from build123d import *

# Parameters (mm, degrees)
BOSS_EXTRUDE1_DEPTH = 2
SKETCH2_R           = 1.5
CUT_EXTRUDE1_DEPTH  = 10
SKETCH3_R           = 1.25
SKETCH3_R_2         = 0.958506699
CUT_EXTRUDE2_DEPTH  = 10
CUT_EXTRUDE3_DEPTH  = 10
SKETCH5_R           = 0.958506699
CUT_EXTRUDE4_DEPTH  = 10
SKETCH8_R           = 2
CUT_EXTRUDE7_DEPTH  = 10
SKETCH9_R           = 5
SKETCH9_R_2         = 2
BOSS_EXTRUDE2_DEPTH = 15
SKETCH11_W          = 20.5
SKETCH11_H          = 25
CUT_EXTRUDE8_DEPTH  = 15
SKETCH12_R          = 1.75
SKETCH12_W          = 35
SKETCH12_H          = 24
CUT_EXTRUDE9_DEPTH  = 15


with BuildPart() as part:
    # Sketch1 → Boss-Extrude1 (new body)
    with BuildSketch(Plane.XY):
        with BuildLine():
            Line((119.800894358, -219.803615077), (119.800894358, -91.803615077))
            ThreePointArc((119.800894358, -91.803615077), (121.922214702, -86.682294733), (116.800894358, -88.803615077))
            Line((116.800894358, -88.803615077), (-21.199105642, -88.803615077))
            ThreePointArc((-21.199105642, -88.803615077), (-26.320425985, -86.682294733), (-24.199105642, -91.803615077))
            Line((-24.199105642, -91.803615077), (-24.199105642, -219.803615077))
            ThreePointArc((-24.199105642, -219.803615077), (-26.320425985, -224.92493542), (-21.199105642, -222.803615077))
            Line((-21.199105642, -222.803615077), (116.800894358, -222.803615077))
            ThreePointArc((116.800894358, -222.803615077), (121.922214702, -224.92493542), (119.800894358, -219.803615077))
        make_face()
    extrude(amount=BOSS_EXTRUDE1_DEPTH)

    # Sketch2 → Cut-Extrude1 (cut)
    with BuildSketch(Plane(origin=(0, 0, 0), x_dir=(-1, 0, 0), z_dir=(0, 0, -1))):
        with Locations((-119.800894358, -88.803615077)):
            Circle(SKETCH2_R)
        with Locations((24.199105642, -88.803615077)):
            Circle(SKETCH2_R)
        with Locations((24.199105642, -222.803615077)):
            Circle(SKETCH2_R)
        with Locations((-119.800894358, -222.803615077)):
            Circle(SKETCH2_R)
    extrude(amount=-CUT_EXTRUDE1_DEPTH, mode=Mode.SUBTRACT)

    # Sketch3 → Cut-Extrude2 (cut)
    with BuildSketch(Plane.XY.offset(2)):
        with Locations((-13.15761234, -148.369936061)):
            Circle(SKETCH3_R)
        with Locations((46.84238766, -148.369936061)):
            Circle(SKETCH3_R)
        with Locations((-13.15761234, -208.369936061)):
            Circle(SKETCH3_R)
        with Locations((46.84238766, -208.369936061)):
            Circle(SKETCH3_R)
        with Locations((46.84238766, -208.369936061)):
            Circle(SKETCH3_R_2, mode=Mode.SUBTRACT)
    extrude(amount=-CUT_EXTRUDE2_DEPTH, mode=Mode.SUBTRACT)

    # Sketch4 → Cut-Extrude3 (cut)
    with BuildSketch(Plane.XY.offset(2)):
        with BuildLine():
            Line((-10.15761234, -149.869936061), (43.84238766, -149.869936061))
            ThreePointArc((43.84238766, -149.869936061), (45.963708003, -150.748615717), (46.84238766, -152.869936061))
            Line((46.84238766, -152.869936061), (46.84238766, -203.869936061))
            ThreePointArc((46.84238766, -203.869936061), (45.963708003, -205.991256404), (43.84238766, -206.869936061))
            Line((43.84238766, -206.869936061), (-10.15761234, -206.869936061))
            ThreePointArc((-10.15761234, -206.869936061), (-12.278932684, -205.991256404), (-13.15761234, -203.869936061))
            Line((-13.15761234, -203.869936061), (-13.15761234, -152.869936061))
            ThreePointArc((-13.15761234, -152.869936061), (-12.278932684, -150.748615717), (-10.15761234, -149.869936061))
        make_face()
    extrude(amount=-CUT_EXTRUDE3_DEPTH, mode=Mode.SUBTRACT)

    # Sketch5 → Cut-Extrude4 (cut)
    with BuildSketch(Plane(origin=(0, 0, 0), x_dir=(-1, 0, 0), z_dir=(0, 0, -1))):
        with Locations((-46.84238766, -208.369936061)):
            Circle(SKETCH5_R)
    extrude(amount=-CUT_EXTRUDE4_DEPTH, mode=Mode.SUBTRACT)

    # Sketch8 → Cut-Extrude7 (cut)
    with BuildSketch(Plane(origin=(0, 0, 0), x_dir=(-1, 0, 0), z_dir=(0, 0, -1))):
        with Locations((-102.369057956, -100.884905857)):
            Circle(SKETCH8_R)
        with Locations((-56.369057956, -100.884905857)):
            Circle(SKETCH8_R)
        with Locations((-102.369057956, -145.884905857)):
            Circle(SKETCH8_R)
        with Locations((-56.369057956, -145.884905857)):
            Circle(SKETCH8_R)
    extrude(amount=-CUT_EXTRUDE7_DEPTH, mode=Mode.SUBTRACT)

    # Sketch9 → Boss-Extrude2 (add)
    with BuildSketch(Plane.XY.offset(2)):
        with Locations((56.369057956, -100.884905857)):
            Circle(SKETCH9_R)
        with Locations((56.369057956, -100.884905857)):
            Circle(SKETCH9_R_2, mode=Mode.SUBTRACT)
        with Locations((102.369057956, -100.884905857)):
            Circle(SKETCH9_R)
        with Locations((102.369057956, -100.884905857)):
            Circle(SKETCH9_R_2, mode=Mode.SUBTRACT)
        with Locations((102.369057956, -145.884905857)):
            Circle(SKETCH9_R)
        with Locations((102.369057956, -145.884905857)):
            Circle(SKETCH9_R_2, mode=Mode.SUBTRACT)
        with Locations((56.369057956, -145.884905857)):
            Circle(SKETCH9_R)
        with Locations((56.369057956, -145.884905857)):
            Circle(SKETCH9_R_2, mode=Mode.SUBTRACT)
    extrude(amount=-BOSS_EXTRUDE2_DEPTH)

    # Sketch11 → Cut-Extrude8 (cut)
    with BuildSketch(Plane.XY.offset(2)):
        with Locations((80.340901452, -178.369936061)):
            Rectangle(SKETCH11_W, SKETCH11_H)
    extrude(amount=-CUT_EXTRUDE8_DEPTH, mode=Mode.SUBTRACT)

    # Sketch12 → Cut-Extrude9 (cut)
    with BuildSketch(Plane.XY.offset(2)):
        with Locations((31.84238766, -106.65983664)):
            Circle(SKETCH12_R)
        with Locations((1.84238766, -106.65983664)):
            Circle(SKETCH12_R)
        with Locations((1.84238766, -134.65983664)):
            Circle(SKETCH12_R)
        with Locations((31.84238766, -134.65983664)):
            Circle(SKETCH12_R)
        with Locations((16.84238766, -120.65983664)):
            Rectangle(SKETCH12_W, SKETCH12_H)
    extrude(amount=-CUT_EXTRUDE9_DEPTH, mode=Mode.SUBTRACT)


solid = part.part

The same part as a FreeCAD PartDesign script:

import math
import FreeCAD as App
import Part
import Sketcher

V = App.Vector
Q = App.Units.Quantity

doc = App.newDocument("Part")
params = doc.addObject("Spreadsheet::Sheet", "Params")
for row, (alias, value) in enumerate([
    ("sketch1_radius", "3 mm"),
    ("sketch1_width", "138 mm"),
    ("sketch1_height", "128 mm"),
    ("pad1_length", "2 mm"),
    ("sketch2_diameter", "3 mm"),
    ("pocket1_length", "10 mm"),
    ("sketch3_diameter", "2.5 mm"),
    ("pocket2_length", "10 mm"),
    ("sketch4_radius", "3 mm"),
    ("sketch4_width", "54 mm"),
    ("sketch4_height", "51 mm"),
    ("pocket3_length", "10 mm"),
    ("pocket4_length", "10 mm"),
    ("sketch6_diameter", "4 mm"),
    ("pocket5_length", "10 mm"),
    ("sketch7_diameter", "10 mm"),
    ("sketch7_diameter2", "4 mm"),
    ("pad2_length", "15 mm"),
    ("sketch8_height", "25 mm"),
    ("sketch8_width", "20.5 mm"),
    ("pocket6_length", "15 mm"),
    ("sketch9_diameter", "3.5 mm"),
    ("sketch9_width", "35 mm"),
    ("sketch9_height", "24 mm"),
    ("pocket7_length", "15 mm"),
], start=1):
    params.set(f"A{row}", alias)
    params.set(f"B{row}", "=" + value)
    params.setAlias(f"B{row}", alias)

body = doc.addObject("PartDesign::Body", "Body")
body.AllowCompound = True

sketch1 = body.newObject("Sketcher::SketchObject", "Sketch")
sketch1.AttachmentSupport = (doc.getObject("XY_Plane"), [""])
sketch1.MapMode = "FlatFace"
sketch1.addGeometry([
    Part.LineSegment(V(119.800894, -219.803615, 0), V(119.800894, -91.803615, 0)),
    Part.ArcOfCircle(Part.Circle(V(119.800894, -88.803615, 0), V(0, 0, 1), 3), math.radians(-90), math.radians(180)),
    Part.LineSegment(V(116.800894, -88.803615, 0), V(-21.199106, -88.803615, 0)),
    Part.ArcOfCircle(Part.Circle(V(-24.199106, -88.803615, 0), V(0, 0, 1), 3), math.radians(0), math.radians(270)),
    Part.LineSegment(V(-24.199106, -91.803615, 0), V(-24.199106, -219.803615, 0)),
    Part.ArcOfCircle(Part.Circle(V(-24.199106, -222.803615, 0), V(0, 0, 1), 3), math.radians(90), math.radians(360)),
    Part.LineSegment(V(-21.199106, -222.803615, 0), V(116.800894, -222.803615, 0)),
    Part.ArcOfCircle(Part.Circle(V(119.800894, -222.803615, 0), V(0, 0, 1), 3), math.radians(180), math.radians(450)),
], False)
sketch1.addConstraint([
    Sketcher.Constraint("Coincident", 0, 2, 1, 1),
    Sketcher.Constraint("Coincident", 1, 2, 2, 1),
    Sketcher.Constraint("Coincident", 2, 2, 3, 1),
    Sketcher.Constraint("Coincident", 3, 2, 4, 1),
    Sketcher.Constraint("Coincident", 4, 2, 5, 1),
    Sketcher.Constraint("Coincident", 5, 2, 6, 1),
    Sketcher.Constraint("Coincident", 6, 2, 7, 1),
    Sketcher.Constraint("Coincident", 7, 2, 0, 1),
    Sketcher.Constraint("Vertical", 0),
    Sketcher.Constraint("Horizontal", 2),
    Sketcher.Constraint("Vertical", 4),
    Sketcher.Constraint("Horizontal", 6),
    Sketcher.Constraint("Equal", 1, 3),
    Sketcher.Constraint("Equal", 3, 5),
    Sketcher.Constraint("Equal", 5, 7),
    Sketcher.Constraint("Horizontal", 1, 3, 3, 3),
    Sketcher.Constraint("Horizontal", 5, 3, 7, 3),
    Sketcher.Constraint("Horizontal", 3, 3, 1, 2),
    Sketcher.Constraint("Horizontal", 7, 3, 5, 2),
    Sketcher.Constraint("Vertical", 3, 3, 5, 3),
    Sketcher.Constraint("Vertical", 1, 3, 7, 3),
    Sketcher.Constraint("Vertical", 7, 3, 0, 2),
    Sketcher.Constraint("Vertical", 5, 3, 3, 2),
    Sketcher.Constraint("Radius", 1, Q("3 mm")),
    Sketcher.Constraint("DistanceX", 2, 2, 2, 1, Q("138 mm")),
    Sketcher.Constraint("DistanceY", 0, 1, 0, 2, Q("128 mm")),
    Sketcher.Constraint("DistanceX", -1, 1, 1, 3, Q("119.800894 mm")),
    Sketcher.Constraint("DistanceY", 1, 3, -1, 1, Q("88.803615 mm")),
])
sketch1.setExpression("Constraints[23]", "Params.sketch1_radius")
sketch1.setExpression("Constraints[24]", "Params.sketch1_width")
sketch1.setExpression("Constraints[25]", "Params.sketch1_height")
pad1 = body.newObject("PartDesign::Pad", "Pad")
pad1.Profile = sketch1
pad1.setExpression("Length", "Params.pad1_length")

sketch2 = body.newObject("Sketcher::SketchObject", "Sketch001")
sketch2.AttachmentSupport = (doc.getObject("XY_Plane"), [""])
sketch2.MapMode = "FlatFace"
sketch2.addGeometry([
    Part.Circle(V(119.800894, -88.803615, 0), V(0, 0, 1), 1.5),
    Part.Circle(V(-24.199106, -88.803615, 0), V(0, 0, 1), 1.5),
    Part.Circle(V(-24.199106, -222.803615, 0), V(0, 0, 1), 1.5),
    Part.Circle(V(119.800894, -222.803615, 0), V(0, 0, 1), 1.5),
], False)
sketch2.addConstraint([
    Sketcher.Constraint("Equal", 0, 1),
    Sketcher.Constraint("Equal", 1, 2),
    Sketcher.Constraint("Equal", 2, 3),
    Sketcher.Constraint("Horizontal", 0, 3, 1, 3),
    Sketcher.Constraint("Horizontal", 2, 3, 3, 3),
    Sketcher.Constraint("Vertical", 1, 3, 2, 3),
    Sketcher.Constraint("Vertical", 0, 3, 3, 3),
    Sketcher.Constraint("Diameter", 0, Q("3 mm")),
    Sketcher.Constraint("DistanceX", 1, 3, 0, 3, Q("144 mm")),
    Sketcher.Constraint("DistanceY", 2, 3, 1, 3, Q("134 mm")),
    Sketcher.Constraint("DistanceX", -1, 1, 0, 3, Q("119.800894 mm")),
    Sketcher.Constraint("DistanceY", 0, 3, -1, 1, Q("88.803615 mm")),
])
sketch2.setExpression("Constraints[7]", "Params.sketch2_diameter")
pocket1 = body.newObject("PartDesign::Pocket", "Pocket")
pocket1.Profile = sketch2
pocket1.setExpression("Length", "Params.pocket1_length")
pocket1.Reversed = True

sketch3 = body.newObject("Sketcher::SketchObject", "Sketch002")
sketch3.AttachmentSupport = (doc.getObject("XY_Plane"), [""])
sketch3.MapMode = "FlatFace"
sketch3.AttachmentOffset = App.Placement(V(0, 0, 2), App.Rotation())
sketch3.addGeometry([
    Part.Circle(V(-13.157612, -148.369936, 0), V(0, 0, 1), 1.25),
    Part.Circle(V(46.842388, -148.369936, 0), V(0, 0, 1), 1.25),
    Part.Circle(V(-13.157612, -208.369936, 0), V(0, 0, 1), 1.25),
    Part.Circle(V(46.842388, -208.369936, 0), V(0, 0, 1), 1.25),
    Part.Circle(V(46.842388, -208.369936, 0), V(0, 0, 1), 0.958507),
], False)
sketch3.addConstraint([
    Sketcher.Constraint("Coincident", 4, 3, 3, 3),
    Sketcher.Constraint("Equal", 0, 1),
    Sketcher.Constraint("Equal", 1, 2),
    Sketcher.Constraint("Equal", 2, 3),
    Sketcher.Constraint("Horizontal", 0, 3, 1, 3),
    Sketcher.Constraint("Horizontal", 2, 3, 3, 3),
    Sketcher.Constraint("Vertical", 0, 3, 2, 3),
    Sketcher.Constraint("Vertical", 1, 3, 3, 3),
    Sketcher.Constraint("Diameter", 0, Q("2.5 mm")),
    Sketcher.Constraint("DistanceX", 0, 3, 1, 3, Q("60 mm")),
    Sketcher.Constraint("DistanceY", 2, 3, 0, 3, Q("60 mm")),
    Sketcher.Constraint("Diameter", 4, Q("1.917013 mm")),
    Sketcher.Constraint("DistanceX", 0, 3, -1, 1, Q("13.157612 mm")),
    Sketcher.Constraint("DistanceY", 0, 3, -1, 1, Q("148.369936 mm")),
])
sketch3.setExpression("Constraints[8]", "Params.sketch3_diameter")
pocket2 = body.newObject("PartDesign::Pocket", "Pocket001")
pocket2.Profile = sketch3
pocket2.setExpression("Length", "Params.pocket2_length")

sketch4 = body.newObject("Sketcher::SketchObject", "Sketch003")
sketch4.AttachmentSupport = (doc.getObject("XY_Plane"), [""])
sketch4.MapMode = "FlatFace"
sketch4.AttachmentOffset = App.Placement(V(0, 0, 2), App.Rotation())
sketch4.addGeometry([
    Part.LineSegment(V(43.842388, -149.869936, 0), V(-10.157612, -149.869936, 0)),
    Part.ArcOfCircle(Part.Circle(V(-10.157612, -152.869936, 0), V(0, 0, 1), 3), math.radians(90), math.radians(180)),
    Part.LineSegment(V(-13.157612, -152.869936, 0), V(-13.157612, -203.869936, 0)),
    Part.ArcOfCircle(Part.Circle(V(-10.157612, -203.869936, 0), V(0, 0, 1), 3), math.radians(180), math.radians(270)),
    Part.LineSegment(V(-10.157612, -206.869936, 0), V(43.842388, -206.869936, 0)),
    Part.ArcOfCircle(Part.Circle(V(43.842388, -203.869936, 0), V(0, 0, 1), 3), math.radians(-90), math.radians(0)),
    Part.LineSegment(V(46.842388, -203.869936, 0), V(46.842388, -152.869936, 0)),
    Part.ArcOfCircle(Part.Circle(V(43.842388, -152.869936, 0), V(0, 0, 1), 3), math.radians(0), math.radians(90)),
], False)
sketch4.addConstraint([
    Sketcher.Constraint("Tangent", 0, 2, 1, 1),
    Sketcher.Constraint("Tangent", 1, 2, 2, 1),
    Sketcher.Constraint("Tangent", 2, 2, 3, 1),
    Sketcher.Constraint("Tangent", 3, 2, 4, 1),
    Sketcher.Constraint("Tangent", 4, 2, 5, 1),
    Sketcher.Constraint("Tangent", 5, 2, 6, 1),
    Sketcher.Constraint("Tangent", 6, 2, 7, 1),
    Sketcher.Constraint("Tangent", 7, 2, 0, 1),
    Sketcher.Constraint("Horizontal", 0),
    Sketcher.Constraint("Vertical", 2),
    Sketcher.Constraint("Horizontal", 4),
    Sketcher.Constraint("Vertical", 6),
    Sketcher.Constraint("Equal", 1, 3),
    Sketcher.Constraint("Equal", 3, 5),
    Sketcher.Constraint("Equal", 5, 7),
    Sketcher.Constraint("Radius", 1, Q("3 mm")),
    Sketcher.Constraint("DistanceX", 0, 2, 0, 1, Q("54 mm")),
    Sketcher.Constraint("DistanceY", 2, 2, 2, 1, Q("51 mm")),
    Sketcher.Constraint("DistanceX", 1, 3, -1, 1, Q("10.157612 mm")),
    Sketcher.Constraint("DistanceY", 1, 3, -1, 1, Q("152.869936 mm")),
])
sketch4.setExpression("Constraints[15]", "Params.sketch4_radius")
sketch4.setExpression("Constraints[16]", "Params.sketch4_width")
sketch4.setExpression("Constraints[17]", "Params.sketch4_height")
pocket3 = body.newObject("PartDesign::Pocket", "Pocket002")
pocket3.Profile = sketch4
pocket3.setExpression("Length", "Params.pocket3_length")

sketch5 = body.newObject("Sketcher::SketchObject", "Sketch004")
sketch5.AttachmentSupport = (doc.getObject("XY_Plane"), [""])
sketch5.MapMode = "FlatFace"
sketch5.addGeometry(Part.Circle(V(46.842388, -208.369936, 0), V(0, 0, 1), 0.958507), False)
sketch5.addConstraint([
    Sketcher.Constraint("Diameter", 0, Q("1.917013 mm")),
    Sketcher.Constraint("DistanceX", -1, 1, 0, 3, Q("46.842388 mm")),
    Sketcher.Constraint("DistanceY", 0, 3, -1, 1, Q("208.369936 mm")),
])
pocket4 = body.newObject("PartDesign::Pocket", "Pocket003")
pocket4.Profile = sketch5
pocket4.setExpression("Length", "Params.pocket4_length")
pocket4.Reversed = True

sketch6 = body.newObject("Sketcher::SketchObject", "Sketch005")
sketch6.AttachmentSupport = (doc.getObject("XY_Plane"), [""])
sketch6.MapMode = "FlatFace"
sketch6.addGeometry([
    Part.Circle(V(102.369058, -100.884906, 0), V(0, 0, 1), 2),
    Part.Circle(V(56.369058, -100.884906, 0), V(0, 0, 1), 2),
    Part.Circle(V(102.369058, -145.884906, 0), V(0, 0, 1), 2),
    Part.Circle(V(56.369058, -145.884906, 0), V(0, 0, 1), 2),
], False)
sketch6.addConstraint([
    Sketcher.Constraint("Equal", 0, 1),
    Sketcher.Constraint("Equal", 1, 2),
    Sketcher.Constraint("Equal", 2, 3),
    Sketcher.Constraint("Horizontal", 0, 3, 1, 3),
    Sketcher.Constraint("Horizontal", 2, 3, 3, 3),
    Sketcher.Constraint("Vertical", 0, 3, 2, 3),
    Sketcher.Constraint("Vertical", 1, 3, 3, 3),
    Sketcher.Constraint("Diameter", 0, Q("4 mm")),
    Sketcher.Constraint("DistanceX", 1, 3, 0, 3, Q("46 mm")),
    Sketcher.Constraint("DistanceY", 2, 3, 0, 3, Q("45 mm")),
    Sketcher.Constraint("DistanceX", -1, 1, 0, 3, Q("102.369058 mm")),
    Sketcher.Constraint("DistanceY", 0, 3, -1, 1, Q("100.884906 mm")),
])
sketch6.setExpression("Constraints[7]", "Params.sketch6_diameter")
pocket5 = body.newObject("PartDesign::Pocket", "Pocket004")
pocket5.Profile = sketch6
pocket5.setExpression("Length", "Params.pocket5_length")
pocket5.Reversed = True

sketch7 = body.newObject("Sketcher::SketchObject", "Sketch006")
sketch7.AttachmentSupport = (doc.getObject("XY_Plane"), [""])
sketch7.MapMode = "FlatFace"
sketch7.AttachmentOffset = App.Placement(V(0, 0, 2), App.Rotation())
sketch7.addGeometry([
    Part.Circle(V(56.369058, -100.884906, 0), V(0, 0, 1), 5),
    Part.Circle(V(56.369058, -100.884906, 0), V(0, 0, 1), 2),
    Part.Circle(V(102.369058, -100.884906, 0), V(0, 0, 1), 5),
    Part.Circle(V(102.369058, -100.884906, 0), V(0, 0, 1), 2),
    Part.Circle(V(102.369058, -145.884906, 0), V(0, 0, 1), 5),
    Part.Circle(V(102.369058, -145.884906, 0), V(0, 0, 1), 2),
    Part.Circle(V(56.369058, -145.884906, 0), V(0, 0, 1), 5),
    Part.Circle(V(56.369058, -145.884906, 0), V(0, 0, 1), 2),
], False)
sketch7.addConstraint([
    Sketcher.Constraint("Coincident", 1, 3, 0, 3),
    Sketcher.Constraint("Coincident", 3, 3, 2, 3),
    Sketcher.Constraint("Coincident", 5, 3, 4, 3),
    Sketcher.Constraint("Coincident", 7, 3, 6, 3),
    Sketcher.Constraint("Equal", 0, 2),
    Sketcher.Constraint("Equal", 1, 3),
    Sketcher.Constraint("Equal", 2, 4),
    Sketcher.Constraint("Equal", 3, 5),
    Sketcher.Constraint("Equal", 4, 6),
    Sketcher.Constraint("Equal", 5, 7),
    Sketcher.Constraint("Horizontal", 1, 3, 2, 3),
    Sketcher.Constraint("Horizontal", 5, 3, 6, 3),
    Sketcher.Constraint("Vertical", 3, 3, 4, 3),
    Sketcher.Constraint("Vertical", 1, 3, 6, 3),
    Sketcher.Constraint("Diameter", 0, Q("10 mm")),
    Sketcher.Constraint("Diameter", 1, Q("4 mm")),
    Sketcher.Constraint("DistanceX", 0, 3, 2, 3, Q("46 mm")),
    Sketcher.Constraint("DistanceY", 4, 3, 2, 3, Q("45 mm")),
    Sketcher.Constraint("DistanceX", -1, 1, 0, 3, Q("56.369058 mm")),
    Sketcher.Constraint("DistanceY", 0, 3, -1, 1, Q("100.884906 mm")),
])
sketch7.setExpression("Constraints[14]", "Params.sketch7_diameter")
sketch7.setExpression("Constraints[15]", "Params.sketch7_diameter2")
pad2 = body.newObject("PartDesign::Pad", "Pad001")
pad2.Profile = sketch7
pad2.setExpression("Length", "Params.pad2_length")
pad2.Reversed = True

sketch8 = body.newObject("Sketcher::SketchObject", "Sketch007")
sketch8.AttachmentSupport = (doc.getObject("XY_Plane"), [""])
sketch8.MapMode = "FlatFace"
sketch8.AttachmentOffset = App.Placement(V(0, 0, 2), App.Rotation())
sketch8.addGeometry([
    Part.LineSegment(V(70.090901, -165.869936, 0), V(70.090901, -190.869936, 0)),
    Part.LineSegment(V(70.090901, -190.869936, 0), V(90.590901, -190.869936, 0)),
    Part.LineSegment(V(90.590901, -190.869936, 0), V(90.590901, -165.869936, 0)),
    Part.LineSegment(V(90.590901, -165.869936, 0), V(70.090901, -165.869936, 0)),
], False)
sketch8.addConstraint([
    Sketcher.Constraint("Coincident", 0, 2, 1, 1),
    Sketcher.Constraint("Coincident", 1, 2, 2, 1),
    Sketcher.Constraint("Coincident", 2, 2, 3, 1),
    Sketcher.Constraint("Coincident", 3, 2, 0, 1),
    Sketcher.Constraint("Vertical", 0),
    Sketcher.Constraint("Horizontal", 1),
    Sketcher.Constraint("Vertical", 2),
    Sketcher.Constraint("Horizontal", 3),
    Sketcher.Constraint("DistanceY", 0, 2, 0, 1, Q("25 mm")),
    Sketcher.Constraint("DistanceX", 1, 1, 1, 2, Q("20.5 mm")),
    Sketcher.Constraint("DistanceX", -1, 1, 0, 2, Q("70.090901 mm")),
    Sketcher.Constraint("DistanceY", 0, 2, -1, 1, Q("190.869936 mm")),
])
sketch8.setExpression("Constraints[8]", "Params.sketch8_height")
sketch8.setExpression("Constraints[9]", "Params.sketch8_width")
pocket6 = body.newObject("PartDesign::Pocket", "Pocket005")
pocket6.Profile = sketch8
pocket6.setExpression("Length", "Params.pocket6_length")

sketch9 = body.newObject("Sketcher::SketchObject", "Sketch008")
sketch9.AttachmentSupport = (doc.getObject("XY_Plane"), [""])
sketch9.MapMode = "FlatFace"
sketch9.AttachmentOffset = App.Placement(V(0, 0, 2), App.Rotation())
sketch9.addGeometry([
    Part.Circle(V(31.842388, -106.659837, 0), V(0, 0, 1), 1.75),
    Part.Circle(V(1.842388, -106.659837, 0), V(0, 0, 1), 1.75),
    Part.Circle(V(1.842388, -134.659837, 0), V(0, 0, 1), 1.75),
    Part.Circle(V(31.842388, -134.659837, 0), V(0, 0, 1), 1.75),
    Part.LineSegment(V(-0.657612, -108.659837, 0), V(-0.657612, -132.659837, 0)),
    Part.LineSegment(V(-0.657612, -132.659837, 0), V(34.342388, -132.659837, 0)),
    Part.LineSegment(V(34.342388, -132.659837, 0), V(34.342388, -108.659837, 0)),
    Part.LineSegment(V(34.342388, -108.659837, 0), V(-0.657612, -108.659837, 0)),
], False)
sketch9.addConstraint([
    Sketcher.Constraint("Coincident", 4, 2, 5, 1),
    Sketcher.Constraint("Coincident", 5, 2, 6, 1),
    Sketcher.Constraint("Coincident", 6, 2, 7, 1),
    Sketcher.Constraint("Coincident", 7, 2, 4, 1),
    Sketcher.Constraint("Vertical", 4),
    Sketcher.Constraint("Horizontal", 5),
    Sketcher.Constraint("Vertical", 6),
    Sketcher.Constraint("Horizontal", 7),
    Sketcher.Constraint("Equal", 0, 1),
    Sketcher.Constraint("Equal", 1, 2),
    Sketcher.Constraint("Equal", 2, 3),
    Sketcher.Constraint("Horizontal", 0, 3, 1, 3),
    Sketcher.Constraint("Horizontal", 2, 3, 3, 3),
    Sketcher.Constraint("Vertical", 1, 3, 2, 3),
    Sketcher.Constraint("Vertical", 0, 3, 3, 3),
    Sketcher.Constraint("Diameter", 0, Q("3.5 mm")),
    Sketcher.Constraint("DistanceX", 5, 1, 5, 2, Q("35 mm")),
    Sketcher.Constraint("DistanceY", 4, 2, 4, 1, Q("24 mm")),
    Sketcher.Constraint("DistanceX", 1, 3, 0, 3, Q("30 mm")),
    Sketcher.Constraint("DistanceY", 2, 3, 1, 3, Q("28 mm")),
    Sketcher.Constraint("DistanceY", 2, 3, 4, 2, Q("2 mm")),
    Sketcher.Constraint("DistanceX", 4, 2, 2, 3, Q("2.5 mm")),
    Sketcher.Constraint("DistanceX", -1, 1, 0, 3, Q("31.842388 mm")),
    Sketcher.Constraint("DistanceY", 0, 3, -1, 1, Q("106.659837 mm")),
])
sketch9.setExpression("Constraints[15]", "Params.sketch9_diameter")
sketch9.setExpression("Constraints[16]", "Params.sketch9_width")
sketch9.setExpression("Constraints[17]", "Params.sketch9_height")
pocket7 = body.newObject("PartDesign::Pocket", "Pocket006")
pocket7.Profile = sketch9
pocket7.setExpression("Length", "Params.pocket7_length")

doc.recompute()
